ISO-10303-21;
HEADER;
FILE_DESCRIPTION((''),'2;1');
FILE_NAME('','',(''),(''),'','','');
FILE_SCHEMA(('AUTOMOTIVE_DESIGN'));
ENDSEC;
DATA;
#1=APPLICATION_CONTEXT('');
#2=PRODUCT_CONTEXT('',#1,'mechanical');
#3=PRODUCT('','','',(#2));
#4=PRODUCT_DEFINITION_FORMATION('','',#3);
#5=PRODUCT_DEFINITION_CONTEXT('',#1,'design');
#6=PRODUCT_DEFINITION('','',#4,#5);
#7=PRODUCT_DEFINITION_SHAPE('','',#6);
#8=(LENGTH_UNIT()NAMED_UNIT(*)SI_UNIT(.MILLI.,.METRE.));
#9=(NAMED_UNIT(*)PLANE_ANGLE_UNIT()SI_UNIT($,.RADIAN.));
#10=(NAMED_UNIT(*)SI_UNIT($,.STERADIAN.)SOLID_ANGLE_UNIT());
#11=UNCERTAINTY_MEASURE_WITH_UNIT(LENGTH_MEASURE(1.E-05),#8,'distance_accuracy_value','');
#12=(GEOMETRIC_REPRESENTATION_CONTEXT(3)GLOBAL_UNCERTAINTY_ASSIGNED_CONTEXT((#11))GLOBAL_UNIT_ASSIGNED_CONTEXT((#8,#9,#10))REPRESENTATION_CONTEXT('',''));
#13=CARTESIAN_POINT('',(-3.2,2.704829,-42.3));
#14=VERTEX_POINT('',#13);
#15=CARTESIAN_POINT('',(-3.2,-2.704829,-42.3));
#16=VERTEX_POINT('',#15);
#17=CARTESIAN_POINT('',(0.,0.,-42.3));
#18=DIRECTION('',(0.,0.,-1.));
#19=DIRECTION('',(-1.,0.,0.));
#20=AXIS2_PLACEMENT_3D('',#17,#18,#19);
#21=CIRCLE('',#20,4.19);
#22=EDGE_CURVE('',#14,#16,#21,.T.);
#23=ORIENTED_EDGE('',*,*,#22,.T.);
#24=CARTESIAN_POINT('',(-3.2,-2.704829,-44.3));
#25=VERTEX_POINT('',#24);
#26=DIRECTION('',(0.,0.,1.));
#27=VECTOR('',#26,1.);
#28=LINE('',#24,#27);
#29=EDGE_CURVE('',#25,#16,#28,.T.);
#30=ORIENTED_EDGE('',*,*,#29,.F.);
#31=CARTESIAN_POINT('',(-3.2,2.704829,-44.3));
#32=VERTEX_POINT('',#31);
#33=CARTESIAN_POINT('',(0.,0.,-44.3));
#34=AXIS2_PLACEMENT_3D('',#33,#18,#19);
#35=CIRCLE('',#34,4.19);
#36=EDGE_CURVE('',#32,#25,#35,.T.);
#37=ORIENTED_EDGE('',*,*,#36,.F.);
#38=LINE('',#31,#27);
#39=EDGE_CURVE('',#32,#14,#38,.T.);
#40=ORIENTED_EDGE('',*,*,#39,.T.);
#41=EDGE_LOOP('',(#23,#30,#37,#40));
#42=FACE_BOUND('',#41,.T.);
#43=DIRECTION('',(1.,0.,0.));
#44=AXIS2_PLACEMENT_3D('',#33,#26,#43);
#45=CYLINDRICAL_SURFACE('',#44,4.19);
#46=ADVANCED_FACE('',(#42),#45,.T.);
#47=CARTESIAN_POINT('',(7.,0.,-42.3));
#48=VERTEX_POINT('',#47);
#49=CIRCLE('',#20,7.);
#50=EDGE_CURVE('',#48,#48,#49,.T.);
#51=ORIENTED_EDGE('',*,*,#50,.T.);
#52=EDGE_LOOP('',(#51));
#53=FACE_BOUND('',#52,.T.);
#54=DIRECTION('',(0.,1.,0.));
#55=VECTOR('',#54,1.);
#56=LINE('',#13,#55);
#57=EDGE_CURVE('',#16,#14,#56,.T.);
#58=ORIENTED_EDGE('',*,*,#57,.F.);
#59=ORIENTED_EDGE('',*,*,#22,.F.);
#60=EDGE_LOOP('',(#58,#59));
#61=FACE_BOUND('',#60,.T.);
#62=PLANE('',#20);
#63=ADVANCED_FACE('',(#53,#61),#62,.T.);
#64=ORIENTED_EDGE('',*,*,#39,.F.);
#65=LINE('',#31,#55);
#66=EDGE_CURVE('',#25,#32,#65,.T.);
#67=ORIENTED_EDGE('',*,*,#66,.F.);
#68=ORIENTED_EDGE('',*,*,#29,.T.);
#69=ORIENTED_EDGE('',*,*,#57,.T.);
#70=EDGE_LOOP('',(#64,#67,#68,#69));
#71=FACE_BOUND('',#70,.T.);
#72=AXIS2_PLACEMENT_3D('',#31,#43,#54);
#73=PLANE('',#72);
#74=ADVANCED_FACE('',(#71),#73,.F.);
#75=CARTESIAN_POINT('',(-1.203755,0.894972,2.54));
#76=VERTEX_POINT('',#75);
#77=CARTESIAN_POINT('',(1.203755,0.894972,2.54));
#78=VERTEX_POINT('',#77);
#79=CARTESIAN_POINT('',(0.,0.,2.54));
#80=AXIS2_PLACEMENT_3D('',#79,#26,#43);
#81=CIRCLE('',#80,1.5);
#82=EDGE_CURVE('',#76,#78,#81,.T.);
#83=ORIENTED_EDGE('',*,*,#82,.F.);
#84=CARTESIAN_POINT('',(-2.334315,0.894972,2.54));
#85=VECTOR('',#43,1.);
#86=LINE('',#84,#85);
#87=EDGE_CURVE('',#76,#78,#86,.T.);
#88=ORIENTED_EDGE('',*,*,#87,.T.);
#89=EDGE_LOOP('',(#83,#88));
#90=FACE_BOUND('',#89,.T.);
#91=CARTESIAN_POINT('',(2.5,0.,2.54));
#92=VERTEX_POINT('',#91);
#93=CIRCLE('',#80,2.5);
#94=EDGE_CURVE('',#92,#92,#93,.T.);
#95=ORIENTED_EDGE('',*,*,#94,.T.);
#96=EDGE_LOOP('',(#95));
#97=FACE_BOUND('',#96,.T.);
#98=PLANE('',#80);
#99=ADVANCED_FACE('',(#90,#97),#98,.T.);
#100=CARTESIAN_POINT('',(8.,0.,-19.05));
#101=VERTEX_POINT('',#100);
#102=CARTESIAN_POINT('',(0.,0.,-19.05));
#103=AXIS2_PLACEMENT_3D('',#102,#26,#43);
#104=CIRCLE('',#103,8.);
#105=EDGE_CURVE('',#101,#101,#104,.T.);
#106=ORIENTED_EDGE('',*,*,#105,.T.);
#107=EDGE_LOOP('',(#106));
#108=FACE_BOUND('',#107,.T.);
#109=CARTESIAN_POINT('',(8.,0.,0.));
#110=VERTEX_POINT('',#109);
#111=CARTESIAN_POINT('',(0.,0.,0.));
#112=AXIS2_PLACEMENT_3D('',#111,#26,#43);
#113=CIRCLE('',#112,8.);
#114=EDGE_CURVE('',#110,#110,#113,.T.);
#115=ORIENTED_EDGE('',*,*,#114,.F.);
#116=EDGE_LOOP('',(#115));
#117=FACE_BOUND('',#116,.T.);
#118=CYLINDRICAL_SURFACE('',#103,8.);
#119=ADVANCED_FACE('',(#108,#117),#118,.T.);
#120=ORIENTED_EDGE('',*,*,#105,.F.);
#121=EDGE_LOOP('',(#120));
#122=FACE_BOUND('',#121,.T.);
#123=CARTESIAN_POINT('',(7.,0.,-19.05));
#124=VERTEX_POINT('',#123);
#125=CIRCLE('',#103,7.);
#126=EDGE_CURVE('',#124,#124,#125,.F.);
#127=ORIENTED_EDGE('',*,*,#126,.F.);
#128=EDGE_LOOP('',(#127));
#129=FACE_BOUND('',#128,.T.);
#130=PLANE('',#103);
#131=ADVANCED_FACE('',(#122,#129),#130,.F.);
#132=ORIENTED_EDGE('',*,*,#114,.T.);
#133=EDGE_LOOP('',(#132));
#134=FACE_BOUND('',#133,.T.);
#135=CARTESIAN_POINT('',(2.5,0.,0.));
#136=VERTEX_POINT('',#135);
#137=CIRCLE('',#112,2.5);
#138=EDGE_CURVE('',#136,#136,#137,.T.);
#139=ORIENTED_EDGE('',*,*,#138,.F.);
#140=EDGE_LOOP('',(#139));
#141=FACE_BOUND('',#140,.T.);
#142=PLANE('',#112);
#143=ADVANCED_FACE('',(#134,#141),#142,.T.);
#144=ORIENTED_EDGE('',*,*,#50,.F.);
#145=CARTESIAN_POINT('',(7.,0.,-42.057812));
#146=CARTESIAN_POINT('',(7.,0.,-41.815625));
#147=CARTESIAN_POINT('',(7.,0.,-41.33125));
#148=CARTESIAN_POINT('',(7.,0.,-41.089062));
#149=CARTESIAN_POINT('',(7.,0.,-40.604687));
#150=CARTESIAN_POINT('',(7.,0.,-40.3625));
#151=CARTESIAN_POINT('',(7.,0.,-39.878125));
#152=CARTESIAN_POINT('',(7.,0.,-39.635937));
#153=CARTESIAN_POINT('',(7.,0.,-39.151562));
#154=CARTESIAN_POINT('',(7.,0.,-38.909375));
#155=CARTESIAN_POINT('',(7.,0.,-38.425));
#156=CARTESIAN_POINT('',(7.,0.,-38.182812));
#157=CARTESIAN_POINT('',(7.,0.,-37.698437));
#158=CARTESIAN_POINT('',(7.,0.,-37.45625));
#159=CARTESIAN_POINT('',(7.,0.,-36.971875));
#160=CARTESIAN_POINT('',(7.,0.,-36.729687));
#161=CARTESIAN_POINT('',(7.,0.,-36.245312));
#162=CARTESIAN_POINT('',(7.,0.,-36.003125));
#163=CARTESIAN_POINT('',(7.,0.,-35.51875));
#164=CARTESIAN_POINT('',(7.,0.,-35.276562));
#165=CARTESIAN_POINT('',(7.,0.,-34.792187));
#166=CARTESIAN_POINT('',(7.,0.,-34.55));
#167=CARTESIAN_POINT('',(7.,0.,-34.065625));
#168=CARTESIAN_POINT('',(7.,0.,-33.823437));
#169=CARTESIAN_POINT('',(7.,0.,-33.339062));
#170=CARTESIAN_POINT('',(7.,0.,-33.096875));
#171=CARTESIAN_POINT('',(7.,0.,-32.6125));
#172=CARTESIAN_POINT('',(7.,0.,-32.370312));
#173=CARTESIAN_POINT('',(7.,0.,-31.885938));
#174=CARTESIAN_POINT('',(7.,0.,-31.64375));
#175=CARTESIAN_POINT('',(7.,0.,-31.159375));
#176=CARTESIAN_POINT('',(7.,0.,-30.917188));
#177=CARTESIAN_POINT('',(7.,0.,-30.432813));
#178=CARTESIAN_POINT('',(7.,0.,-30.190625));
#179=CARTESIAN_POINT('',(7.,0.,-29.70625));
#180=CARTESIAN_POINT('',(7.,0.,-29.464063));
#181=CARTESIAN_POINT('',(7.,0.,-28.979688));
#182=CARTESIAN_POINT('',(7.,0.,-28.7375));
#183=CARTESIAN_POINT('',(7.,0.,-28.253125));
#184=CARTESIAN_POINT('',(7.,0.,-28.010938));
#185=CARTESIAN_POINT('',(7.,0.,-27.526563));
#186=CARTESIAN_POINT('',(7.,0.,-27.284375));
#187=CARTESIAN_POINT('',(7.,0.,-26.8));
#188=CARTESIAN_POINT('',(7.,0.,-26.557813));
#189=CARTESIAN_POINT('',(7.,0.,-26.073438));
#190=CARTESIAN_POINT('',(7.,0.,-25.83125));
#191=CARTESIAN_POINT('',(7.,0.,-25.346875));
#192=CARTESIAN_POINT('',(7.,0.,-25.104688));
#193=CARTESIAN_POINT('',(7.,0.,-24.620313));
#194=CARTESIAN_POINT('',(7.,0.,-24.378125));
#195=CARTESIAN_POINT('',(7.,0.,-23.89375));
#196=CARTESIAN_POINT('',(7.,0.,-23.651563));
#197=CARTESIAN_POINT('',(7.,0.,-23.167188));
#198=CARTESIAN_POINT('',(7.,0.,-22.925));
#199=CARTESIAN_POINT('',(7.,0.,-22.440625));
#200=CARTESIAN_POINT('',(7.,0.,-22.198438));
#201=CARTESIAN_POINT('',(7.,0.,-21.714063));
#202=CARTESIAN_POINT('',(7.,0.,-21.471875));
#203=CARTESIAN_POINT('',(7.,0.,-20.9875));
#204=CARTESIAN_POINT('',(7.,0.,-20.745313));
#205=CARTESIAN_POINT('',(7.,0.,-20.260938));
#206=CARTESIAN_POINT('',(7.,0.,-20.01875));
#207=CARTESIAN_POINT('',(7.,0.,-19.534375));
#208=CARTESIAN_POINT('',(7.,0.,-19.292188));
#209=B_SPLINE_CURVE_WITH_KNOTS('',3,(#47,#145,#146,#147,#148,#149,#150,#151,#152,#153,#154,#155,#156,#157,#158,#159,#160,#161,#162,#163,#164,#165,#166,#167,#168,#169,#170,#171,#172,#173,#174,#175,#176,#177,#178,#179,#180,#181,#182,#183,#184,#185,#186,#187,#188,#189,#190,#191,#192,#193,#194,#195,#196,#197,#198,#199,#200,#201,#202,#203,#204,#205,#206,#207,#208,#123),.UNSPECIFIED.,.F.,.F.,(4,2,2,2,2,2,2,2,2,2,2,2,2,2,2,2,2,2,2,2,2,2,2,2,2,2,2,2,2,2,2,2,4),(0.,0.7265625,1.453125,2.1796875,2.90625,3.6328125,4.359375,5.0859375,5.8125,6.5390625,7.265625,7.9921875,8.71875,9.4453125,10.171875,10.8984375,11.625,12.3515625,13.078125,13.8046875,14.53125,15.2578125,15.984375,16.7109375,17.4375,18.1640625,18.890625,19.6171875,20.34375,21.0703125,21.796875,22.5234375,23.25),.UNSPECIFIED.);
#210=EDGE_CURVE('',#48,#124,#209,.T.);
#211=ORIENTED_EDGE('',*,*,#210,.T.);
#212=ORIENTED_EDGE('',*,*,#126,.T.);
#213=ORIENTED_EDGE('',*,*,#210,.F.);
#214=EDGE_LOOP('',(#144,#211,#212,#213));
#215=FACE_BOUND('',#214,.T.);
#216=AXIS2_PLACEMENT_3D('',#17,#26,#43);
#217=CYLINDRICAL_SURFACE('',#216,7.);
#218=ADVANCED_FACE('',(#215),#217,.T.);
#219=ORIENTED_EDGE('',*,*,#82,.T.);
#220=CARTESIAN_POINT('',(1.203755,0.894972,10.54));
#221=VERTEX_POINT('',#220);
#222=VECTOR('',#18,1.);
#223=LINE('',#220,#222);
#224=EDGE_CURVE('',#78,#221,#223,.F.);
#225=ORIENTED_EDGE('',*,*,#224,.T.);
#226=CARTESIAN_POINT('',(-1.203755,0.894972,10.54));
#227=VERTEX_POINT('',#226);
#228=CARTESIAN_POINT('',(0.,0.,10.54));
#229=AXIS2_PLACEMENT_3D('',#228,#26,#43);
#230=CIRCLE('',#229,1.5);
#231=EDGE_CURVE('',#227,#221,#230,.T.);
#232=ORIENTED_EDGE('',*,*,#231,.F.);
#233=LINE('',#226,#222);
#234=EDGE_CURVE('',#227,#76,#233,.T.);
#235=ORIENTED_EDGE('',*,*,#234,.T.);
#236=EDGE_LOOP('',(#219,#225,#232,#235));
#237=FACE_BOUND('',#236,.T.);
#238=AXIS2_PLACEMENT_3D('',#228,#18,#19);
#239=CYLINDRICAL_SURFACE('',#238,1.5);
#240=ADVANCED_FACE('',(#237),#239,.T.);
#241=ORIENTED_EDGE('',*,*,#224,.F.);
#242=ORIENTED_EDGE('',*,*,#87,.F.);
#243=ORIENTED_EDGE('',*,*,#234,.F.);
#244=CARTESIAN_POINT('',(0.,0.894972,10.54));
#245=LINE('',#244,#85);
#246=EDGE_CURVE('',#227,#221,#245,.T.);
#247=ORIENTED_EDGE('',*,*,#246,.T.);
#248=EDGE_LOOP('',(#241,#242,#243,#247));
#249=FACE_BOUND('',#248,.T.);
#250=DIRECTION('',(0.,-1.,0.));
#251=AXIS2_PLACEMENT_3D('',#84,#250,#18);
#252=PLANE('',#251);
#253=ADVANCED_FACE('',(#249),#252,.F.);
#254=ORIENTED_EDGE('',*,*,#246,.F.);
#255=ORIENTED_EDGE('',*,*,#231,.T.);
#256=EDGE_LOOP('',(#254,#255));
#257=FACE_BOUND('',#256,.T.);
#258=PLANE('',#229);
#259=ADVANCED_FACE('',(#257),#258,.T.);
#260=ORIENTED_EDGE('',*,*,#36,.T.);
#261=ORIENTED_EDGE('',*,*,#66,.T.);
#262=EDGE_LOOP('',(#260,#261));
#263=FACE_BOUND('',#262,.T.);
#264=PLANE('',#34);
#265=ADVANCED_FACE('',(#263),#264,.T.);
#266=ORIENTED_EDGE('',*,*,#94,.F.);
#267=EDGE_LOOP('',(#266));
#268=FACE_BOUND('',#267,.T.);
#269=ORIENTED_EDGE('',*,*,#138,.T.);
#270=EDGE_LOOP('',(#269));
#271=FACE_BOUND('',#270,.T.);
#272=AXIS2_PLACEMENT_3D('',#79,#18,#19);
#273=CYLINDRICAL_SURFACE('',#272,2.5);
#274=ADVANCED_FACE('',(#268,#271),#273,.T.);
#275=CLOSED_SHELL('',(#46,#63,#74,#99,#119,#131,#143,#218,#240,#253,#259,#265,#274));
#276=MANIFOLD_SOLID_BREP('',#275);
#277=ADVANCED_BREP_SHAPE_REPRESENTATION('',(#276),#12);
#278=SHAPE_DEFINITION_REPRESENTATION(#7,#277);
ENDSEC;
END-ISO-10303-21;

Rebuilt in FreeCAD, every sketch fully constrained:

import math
import FreeCAD as App
import Part
import Sketcher

V = App.Vector

doc = App.newDocument("Part")
params = doc.addObject("Spreadsheet::Sheet", "Params")
for row, (alias, value) in enumerate([
    ("sketch1_diameter", "16 mm"),
    ("pad1_length", "19.05 mm"),
    ("sketch2_diameter", "5 mm"),
    ("pad2_length", "2.54 mm"),
    ("sketch3_diameter", "3 mm"),
    ("pad3_length", "8 mm"),
    ("sketch4_radius", "2.5 mm"),
    ("pocket1_length", "8 mm"),
    ("sketch5_diameter", "14 mm"),
    ("pad4_length", "23.25 mm"),
    ("sketch6_radius", "4.19 mm"),
    ("pad5_length", "2 mm"),
], start=1):
    params.set(f"A{row}", alias)
    params.set(f"B{row}", "=" + value)
    params.setAlias(f"B{row}", alias)

body = doc.addObject("PartDesign::Body", "Body")

sketch1 = doc.addObject("Sketcher::SketchObject", "Sketch")
body.addObject(sketch1)
sketch1.AttachmentSupport = (doc.XY_Plane, [""])
sketch1.MapMode = "FlatFace"
sketch1.addGeometry(Part.Circle(V(0, 0, 0), V(0, 0, 1), 8), False)
sketch1.addConstraint([
    Sketcher.Constraint("Coincident", 0, 3, -1, 1),
    Sketcher.Constraint("Diameter", 0, 16.0),
])
sketch1.setExpression("Constraints[1]", "Params.sketch1_diameter")
pad1 = doc.addObject("PartDesign::Pad", "Pad")
body.addObject(pad1)
pad1.Profile = sketch1
pad1.setExpression("Length", "Params.pad1_length")
pad1.Reversed = True

sketch2 = doc.addObject("Sketcher::SketchObject", "Sketch001")
body.addObject(sketch2)
sketch2.AttachmentSupport = (doc.XY_Plane, [""])
sketch2.MapMode = "FlatFace"
sketch2.addGeometry(Part.Circle(V(0, 0, 0), V(0, 0, 1), 2.5), False)
sketch2.addConstraint([
    Sketcher.Constraint("Coincident", 0, 3, -1, 1),
    Sketcher.Constraint("Diameter", 0, 5.0),
])
sketch2.setExpression("Constraints[1]", "Params.sketch2_diameter")
pad2 = doc.addObject("PartDesign::Pad", "Pad001")
body.addObject(pad2)
pad2.Profile = sketch2
pad2.setExpression("Length", "Params.pad2_length")

sketch3 = doc.addObject("Sketcher::SketchObject", "Sketch002")
body.addObject(sketch3)
sketch3.AttachmentSupport = (doc.XY_Plane, [""])
sketch3.MapMode = "FlatFace"
sketch3.AttachmentOffset = App.Placement(V(0, 0, 2.54), App.Rotation())
sketch3.addGeometry(Part.Circle(V(0, 0, 0), V(0, 0, 1), 1.5), False)
sketch3.addConstraint([
    Sketcher.Constraint("Coincident", 0, 3, -1, 1),
    Sketcher.Constraint("Diameter", 0, 3.0),
])
sketch3.setExpression("Constraints[1]", "Params.sketch3_diameter")
pad3 = doc.addObject("PartDesign::Pad", "Pad002")
body.addObject(pad3)
pad3.Profile = sketch3
pad3.setExpression("Length", "Params.pad3_length")

sketch4 = doc.addObject("Sketcher::SketchObject", "Sketch003")
body.addObject(sketch4)
sketch4.AttachmentSupport = (doc.XY_Plane, [""])
sketch4.MapMode = "FlatFace"
sketch4.AttachmentOffset = App.Placement(V(0, 0, 2.54), App.Rotation())
sketch4.addGeometry([
    Part.LineSegment(V(-2.3, 0.9, 0), V(2.3, 0.9, 0)),
    Part.ArcOfCircle(Part.Circle(V(0, 0, 0), V(0, 0, 1), 2.5), math.radians(21), math.radians(159)),
], False)
sketch4.addConstraint([
    Sketcher.Constraint("Coincident", 0, 1, 1, 2),
    Sketcher.Constraint("Coincident", 1, 1, 0, 2),
    Sketcher.Constraint("Horizontal", 0),
    Sketcher.Constraint("Coincident", 1, 3, -1, 1),
    Sketcher.Constraint("Radius", 1, 2.5),
    Sketcher.Constraint("DistanceX", 0, 1, 0, 2, 4.668629),
])
sketch4.setExpression("Constraints[4]", "Params.sketch4_radius")
pocket1 = doc.addObject("PartDesign::Pocket", "Pocket")
body.addObject(pocket1)
pocket1.Profile = sketch4
pocket1.setExpression("Length", "Params.pocket1_length")
pocket1.Reversed = True

sketch5 = doc.addObject("Sketcher::SketchObject", "Sketch004")
body.addObject(sketch5)
sketch5.AttachmentSupport = (doc.XY_Plane, [""])
sketch5.MapMode = "FlatFace"
sketch5.AttachmentOffset = App.Placement(V(0, 0, -19.05), App.Rotation())
sketch5.addGeometry(Part.Circle(V(0, 0, 0), V(0, 0, 1), 7), False)
sketch5.addConstraint([
    Sketcher.Constraint("Coincident", 0, 3, -1, 1),
    Sketcher.Constraint("Diameter", 0, 14.0),
])
sketch5.setExpression("Constraints[1]", "Params.sketch5_diameter")
pad4 = doc.addObject("PartDesign::Pad", "Pad003")
body.addObject(pad4)
pad4.Profile = sketch5
pad4.setExpression("Length", "Params.pad4_length")
pad4.Reversed = True

sketch6 = doc.addObject("Sketcher::SketchObject", "Sketch005")
body.addObject(sketch6)
sketch6.AttachmentSupport = (doc.XY_Plane, [""])
sketch6.MapMode = "FlatFace"
sketch6.AttachmentOffset = App.Placement(V(0, 0, -42.3), App.Rotation())
sketch6.addGeometry([
    Part.LineSegment(V(-3.2, -2.7, 0), V(-3.2, 2.7, 0)),
    Part.ArcOfCircle(Part.Circle(V(0, 0, 0), V(0, 0, 1), 4.2), math.radians(-140), math.radians(140)),
], False)
sketch6.addConstraint([
    Sketcher.Constraint("Coincident", 0, 1, 1, 1),
    Sketcher.Constraint("Coincident", 1, 2, 0, 2),
    Sketcher.Constraint("Vertical", 0),
    Sketcher.Constraint("Coincident", 1, 3, -1, 1),
    Sketcher.Constraint("Radius", 1, 4.19),
    Sketcher.Constraint("DistanceX", 0, 1, -1, 1, 3.2),
])
sketch6.setExpression("Constraints[4]", "Params.sketch6_radius")
pad5 = doc.addObject("PartDesign::Pad", "Pad004")
body.addObject(pad5)
pad5.Profile = sketch6
pad5.setExpression("Length", "Params.pad5_length")
pad5.Reversed = True

doc.recompute()
